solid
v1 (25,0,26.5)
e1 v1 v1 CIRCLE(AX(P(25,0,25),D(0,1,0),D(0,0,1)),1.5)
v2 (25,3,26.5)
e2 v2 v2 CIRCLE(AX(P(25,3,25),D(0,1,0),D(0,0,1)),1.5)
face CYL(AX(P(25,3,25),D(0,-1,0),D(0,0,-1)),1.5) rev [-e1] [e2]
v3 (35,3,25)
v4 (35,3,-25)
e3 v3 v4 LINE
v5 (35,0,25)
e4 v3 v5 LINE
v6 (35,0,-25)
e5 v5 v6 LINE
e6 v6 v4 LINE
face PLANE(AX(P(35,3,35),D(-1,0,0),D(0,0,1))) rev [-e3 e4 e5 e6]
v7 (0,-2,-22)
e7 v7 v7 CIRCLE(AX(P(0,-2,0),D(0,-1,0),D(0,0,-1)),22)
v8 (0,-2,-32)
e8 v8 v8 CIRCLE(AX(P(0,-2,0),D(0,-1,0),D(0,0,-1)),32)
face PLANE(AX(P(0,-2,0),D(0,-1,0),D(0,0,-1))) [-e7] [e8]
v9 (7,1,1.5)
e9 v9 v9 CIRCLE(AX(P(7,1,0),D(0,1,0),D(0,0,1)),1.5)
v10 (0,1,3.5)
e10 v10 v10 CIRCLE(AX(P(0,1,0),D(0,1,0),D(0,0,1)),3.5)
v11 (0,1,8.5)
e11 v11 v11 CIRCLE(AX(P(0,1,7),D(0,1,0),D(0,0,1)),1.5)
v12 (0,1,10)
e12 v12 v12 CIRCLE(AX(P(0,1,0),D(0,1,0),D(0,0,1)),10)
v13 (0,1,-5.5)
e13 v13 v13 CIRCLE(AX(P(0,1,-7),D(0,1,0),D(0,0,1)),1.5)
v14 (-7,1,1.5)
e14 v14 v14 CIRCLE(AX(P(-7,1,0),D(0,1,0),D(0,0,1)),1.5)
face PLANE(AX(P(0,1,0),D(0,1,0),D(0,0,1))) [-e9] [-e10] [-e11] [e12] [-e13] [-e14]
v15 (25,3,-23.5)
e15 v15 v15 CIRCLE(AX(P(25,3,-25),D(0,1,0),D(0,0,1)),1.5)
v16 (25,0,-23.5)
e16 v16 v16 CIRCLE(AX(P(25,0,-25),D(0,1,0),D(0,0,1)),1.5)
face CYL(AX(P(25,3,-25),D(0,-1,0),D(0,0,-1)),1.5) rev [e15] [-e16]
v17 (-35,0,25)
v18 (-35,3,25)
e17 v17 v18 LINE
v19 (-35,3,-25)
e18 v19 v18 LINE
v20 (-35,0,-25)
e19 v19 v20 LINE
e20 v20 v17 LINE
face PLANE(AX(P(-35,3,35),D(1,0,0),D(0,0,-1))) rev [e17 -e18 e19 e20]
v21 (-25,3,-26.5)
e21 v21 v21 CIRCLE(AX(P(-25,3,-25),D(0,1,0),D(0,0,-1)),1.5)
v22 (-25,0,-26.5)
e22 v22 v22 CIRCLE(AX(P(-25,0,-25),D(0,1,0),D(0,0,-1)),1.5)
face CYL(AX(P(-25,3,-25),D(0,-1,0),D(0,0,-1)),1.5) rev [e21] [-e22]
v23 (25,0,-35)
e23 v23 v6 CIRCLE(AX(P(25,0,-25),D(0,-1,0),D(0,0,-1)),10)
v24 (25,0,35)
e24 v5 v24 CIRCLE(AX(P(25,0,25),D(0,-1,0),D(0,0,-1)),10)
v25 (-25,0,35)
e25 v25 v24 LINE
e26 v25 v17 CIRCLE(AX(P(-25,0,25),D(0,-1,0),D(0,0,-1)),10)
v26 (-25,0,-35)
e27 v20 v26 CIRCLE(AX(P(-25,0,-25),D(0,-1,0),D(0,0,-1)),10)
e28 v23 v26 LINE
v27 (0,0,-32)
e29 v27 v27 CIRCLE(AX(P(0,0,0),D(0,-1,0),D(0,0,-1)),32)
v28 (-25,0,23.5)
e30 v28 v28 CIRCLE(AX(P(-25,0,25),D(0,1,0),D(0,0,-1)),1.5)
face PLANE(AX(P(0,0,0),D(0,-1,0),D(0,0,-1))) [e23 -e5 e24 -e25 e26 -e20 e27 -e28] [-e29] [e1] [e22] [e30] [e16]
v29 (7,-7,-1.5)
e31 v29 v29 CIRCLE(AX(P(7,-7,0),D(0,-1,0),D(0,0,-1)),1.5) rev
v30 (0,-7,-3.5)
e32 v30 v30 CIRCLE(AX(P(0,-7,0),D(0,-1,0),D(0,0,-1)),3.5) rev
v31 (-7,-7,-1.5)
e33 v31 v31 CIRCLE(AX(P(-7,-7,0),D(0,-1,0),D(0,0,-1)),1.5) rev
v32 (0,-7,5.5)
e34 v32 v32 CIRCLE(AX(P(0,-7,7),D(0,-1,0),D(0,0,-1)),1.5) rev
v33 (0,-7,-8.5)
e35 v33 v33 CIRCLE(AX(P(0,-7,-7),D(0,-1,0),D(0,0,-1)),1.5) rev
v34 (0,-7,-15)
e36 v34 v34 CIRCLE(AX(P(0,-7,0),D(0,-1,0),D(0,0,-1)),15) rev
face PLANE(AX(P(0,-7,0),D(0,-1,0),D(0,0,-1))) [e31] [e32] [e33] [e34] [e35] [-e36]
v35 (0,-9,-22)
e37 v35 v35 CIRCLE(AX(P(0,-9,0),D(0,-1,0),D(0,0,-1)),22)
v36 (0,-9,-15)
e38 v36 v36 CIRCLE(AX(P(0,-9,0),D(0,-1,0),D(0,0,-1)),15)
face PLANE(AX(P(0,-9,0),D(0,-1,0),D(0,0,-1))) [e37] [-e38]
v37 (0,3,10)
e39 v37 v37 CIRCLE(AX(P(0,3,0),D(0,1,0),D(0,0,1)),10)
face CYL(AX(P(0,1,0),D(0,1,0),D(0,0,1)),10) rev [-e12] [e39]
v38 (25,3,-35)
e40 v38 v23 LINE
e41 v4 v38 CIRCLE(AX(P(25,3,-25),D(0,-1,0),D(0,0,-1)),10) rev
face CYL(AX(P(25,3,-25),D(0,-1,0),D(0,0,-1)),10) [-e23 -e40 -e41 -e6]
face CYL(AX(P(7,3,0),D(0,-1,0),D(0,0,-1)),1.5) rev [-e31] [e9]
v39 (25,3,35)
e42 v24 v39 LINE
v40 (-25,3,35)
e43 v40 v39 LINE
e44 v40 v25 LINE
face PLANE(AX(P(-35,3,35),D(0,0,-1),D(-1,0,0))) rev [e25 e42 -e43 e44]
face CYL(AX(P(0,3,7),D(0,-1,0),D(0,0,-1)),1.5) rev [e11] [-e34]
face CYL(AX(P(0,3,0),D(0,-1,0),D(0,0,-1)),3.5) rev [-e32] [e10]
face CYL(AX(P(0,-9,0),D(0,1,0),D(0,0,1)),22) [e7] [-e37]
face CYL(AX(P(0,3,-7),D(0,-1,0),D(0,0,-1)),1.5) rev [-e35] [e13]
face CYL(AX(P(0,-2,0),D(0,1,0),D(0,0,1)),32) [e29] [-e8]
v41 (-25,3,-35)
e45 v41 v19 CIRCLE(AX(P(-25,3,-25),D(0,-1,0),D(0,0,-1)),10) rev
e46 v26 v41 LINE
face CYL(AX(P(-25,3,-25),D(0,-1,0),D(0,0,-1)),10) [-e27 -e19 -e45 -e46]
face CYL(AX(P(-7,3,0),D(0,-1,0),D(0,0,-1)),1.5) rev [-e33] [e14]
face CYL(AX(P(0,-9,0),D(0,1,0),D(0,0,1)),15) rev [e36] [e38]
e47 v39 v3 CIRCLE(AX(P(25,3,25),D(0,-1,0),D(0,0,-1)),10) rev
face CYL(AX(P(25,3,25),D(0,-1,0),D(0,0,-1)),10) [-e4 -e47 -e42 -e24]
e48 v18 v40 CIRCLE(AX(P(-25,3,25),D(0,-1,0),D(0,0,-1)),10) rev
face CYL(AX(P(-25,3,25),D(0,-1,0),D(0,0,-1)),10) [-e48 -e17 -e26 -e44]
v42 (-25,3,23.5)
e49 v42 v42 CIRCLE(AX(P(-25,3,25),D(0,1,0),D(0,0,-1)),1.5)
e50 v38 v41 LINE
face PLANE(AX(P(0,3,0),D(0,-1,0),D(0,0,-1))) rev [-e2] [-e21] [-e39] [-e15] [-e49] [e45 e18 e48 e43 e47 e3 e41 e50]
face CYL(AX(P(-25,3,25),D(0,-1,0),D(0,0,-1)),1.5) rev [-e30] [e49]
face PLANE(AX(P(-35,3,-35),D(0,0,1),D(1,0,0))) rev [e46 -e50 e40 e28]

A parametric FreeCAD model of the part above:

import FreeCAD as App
import Part
import Sketcher
from FreeCAD import Vector


def edges_at(feature, points):
    """Names of the edges that pass closest to the given points."""
    edges = feature.Shape.Edges
    near = lambda p: min(range(len(edges)), key=lambda i: edges[i].distToShape(Part.Vertex(*p))[0])
    return sorted({f"Edge{near(p) + 1}" for p in points})

doc = App.newDocument("Part")
params = doc.addObject("Spreadsheet::Sheet", "Params")
for row, (alias, value) in enumerate([
    ("sketch1_diameter", "3 mm"),
    ("sketch1_diameter2", "7 mm"),
    ("sketch1_width", "70 mm"),
    ("pad1_length", "3 mm"),
    ("sketch2_diameter", "30 mm"),
    ("sketch2_diameter2", "3 mm"),
    ("sketch2_diameter3", "7 mm"),
    ("pad2_length", "7 mm"),
    ("sketch3_diameter", "44 mm"),
    ("sketch3_diameter2", "30 mm"),
    ("pad3_length", "9 mm"),
    ("sketch4_diameter", "64 mm"),
    ("sketch4_diameter2", "24 mm"),
    ("pad4_length", "2 mm"),
    ("fillet_radius", "10 mm"),
    ("sketch5_diameter", "20 mm"),
    ("pocket1_length", "2 mm"),
], start=1):
    params.set(f"A{row}", alias)
    params.set(f"B{row}", "=" + value)
    params.setAlias(f"B{row}", alias)

body = doc.addObject("PartDesign::Body", "Body")

# Sketch on XZ plane
sketch1 = doc.addObject("Sketcher::SketchObject", "Sketch")
body.addObject(sketch1)
sketch1.AttachmentSupport = (doc.XZ_Plane, [""])
sketch1.MapMode = "FlatFace"
sketch1.addGeometry(Part.LineSegment(Vector(-35, 35, 0), Vector(35, 35, 0)), False)
sketch1.addGeometry(Part.LineSegment(Vector(35, 35, 0), Vector(35, -35, 0)), False)
sketch1.addGeometry(Part.LineSegment(Vector(35, -35, 0), Vector(-35, -35, 0)), False)
sketch1.addGeometry(Part.LineSegment(Vector(-35, -35, 0), Vector(-35, 35, 0)), False)
sketch1.addGeometry(Part.Circle(Vector(-25, 25, 0), Vector(0, 0, 1), 1.5), False)
sketch1.addGeometry(Part.Circle(Vector(25, 25, 0), Vector(0, 0, 1), 1.5), False)
sketch1.addGeometry(Part.Circle(Vector(0, 7, 0), Vector(0, 0, 1), 1.5), False)
sketch1.addGeometry(Part.Circle(Vector(-7, 0, 0), Vector(0, 0, 1), 1.5), False)
sketch1.addGeometry(Part.Circle(Vector(0, 0, 0), Vector(0, 0, 1), 3.5), False)
sketch1.addGeometry(Part.Circle(Vector(-25, -25, 0), Vector(0, 0, 1), 1.5), False)
sketch1.addGeometry(Part.Circle(Vector(7, 0, 0), Vector(0, 0, 1), 1.5), False)
sketch1.addGeometry(Part.Circle(Vector(0, -7, 0), Vector(0, 0, 1), 1.5), False)
sketch1.addGeometry(Part.Circle(Vector(25, -25, 0), Vector(0, 0, 1), 1.5), False)
sketch1.addConstraint(Sketcher.Constraint("Coincident", 0, 2, 1, 1))
sketch1.addConstraint(Sketcher.Constraint("Coincident", 1, 2, 2, 1))
sketch1.addConstraint(Sketcher.Constraint("Coincident", 2, 2, 3, 1))
sketch1.addConstraint(Sketcher.Constraint("Coincident", 3, 2, 0, 1))
sketch1.addConstraint(Sketcher.Constraint("Horizontal", 0))
sketch1.addConstraint(Sketcher.Constraint("Vertical", 1))
sketch1.addConstraint(Sketcher.Constraint("Horizontal", 2))
sketch1.addConstraint(Sketcher.Constraint("Vertical", 3))
sketch1.addConstraint(Sketcher.Constraint("Coincident", 8, 3, -1, 1))
sketch1.addConstraint(Sketcher.Constraint("Equal", 4, 5))
sketch1.addConstraint(Sketcher.Constraint("Equal", 5, 6))
sketch1.addConstraint(Sketcher.Constraint("Equal", 6, 7))
sketch1.addConstraint(Sketcher.Constraint("Equal", 7, 9))
sketch1.addConstraint(Sketcher.Constraint("Equal", 9, 10))
sketch1.addConstraint(Sketcher.Constraint("Equal", 10, 11))
sketch1.addConstraint(Sketcher.Constraint("Equal", 11, 12))
sketch1.addConstraint(Sketcher.Constraint("Symmetric", 5, 3, 9, 3, -1, 1))
sketch1.addConstraint(Sketcher.Constraint("Symmetric", 7, 3, 10, 3, -1, 1))
sketch1.addConstraint(Sketcher.Constraint("Symmetric", 6, 3, 11, 3, -1, 1))
sketch1.addConstraint(Sketcher.Constraint("Symmetric", 4, 3, 12, 3, -1, 1))
sketch1.addConstraint(Sketcher.Constraint("Symmetric", 0, 2, 2, 2, -1, 1))
sketch1.addConstraint(Sketcher.Constraint("Symmetric", 4, 3, 5, 3, -2))
sketch1.addConstraint(Sketcher.Constraint("PointOnObject", 6, 3, -2))
sketch1.addConstraint(Sketcher.Constraint("PointOnObject", 7, 3, -1))
sketch1.addConstraint(Sketcher.Constraint("Equal", 2, 1))
sketch1.addConstraint(Sketcher.Constraint("Diameter", 4, 3.0))
sketch1.addConstraint(Sketcher.Constraint("Diameter", 8, 7.0))
sketch1.addConstraint(Sketcher.Constraint("DistanceX", 0, 1, 0, 2, 70.0))
sketch1.addConstraint(Sketcher.Constraint("DistanceX", 4, 3, -1, 1, 25.0))
sketch1.addConstraint(Sketcher.Constraint("DistanceY", -1, 1, 4, 3, 25.0))
sketch1.addConstraint(Sketcher.Constraint("DistanceY", -1, 1, 6, 3, 7.0))
sketch1.addConstraint(Sketcher.Constraint("DistanceX", 7, 3, -1, 1, 7.0))
sketch1.setExpression("Constraints[25]", "Params.sketch1_diameter")
sketch1.setExpression("Constraints[26]", "Params.sketch1_diameter2")
sketch1.setExpression("Constraints[27]", "Params.sketch1_width")
pad1 = doc.addObject("PartDesign::Pad", "Pad")
body.addObject(pad1)
pad1.Profile = sketch1
pad1.setExpression("Length", "Params.pad1_length")
pad1.Reversed = True

# Sketch on XZ plane
sketch2 = doc.addObject("Sketcher::SketchObject", "Sketch001")
body.addObject(sketch2)
sketch2.AttachmentSupport = (doc.XZ_Plane, [""])
sketch2.MapMode = "FlatFace"
sketch2.AttachmentOffset = App.Placement(Vector(0, 0, 7), App.Rotation())
sketch2.addGeometry(Part.Circle(Vector(0, 0, 0), Vector(0, 0, 1), 15), False)
sketch2.addGeometry(Part.Circle(Vector(0, 7, 0), Vector(0, 0, 1), 1.5), False)
sketch2.addGeometry(Part.Circle(Vector(-7, 0, 0), Vector(0, 0, 1), 1.5), False)
sketch2.addGeometry(Part.Circle(Vector(0, 0, 0), Vector(0, 0, 1), 3.5), False)
sketch2.addGeometry(Part.Circle(Vector(7, 0, 0), Vector(0, 0, 1), 1.5), False)
sketch2.addGeometry(Part.Circle(Vector(0, -7, 0), Vector(0, 0, 1), 1.5), False)
sketch2.addConstraint(Sketcher.Constraint("Coincident", 0, 3, -1, 1))
sketch2.addConstraint(Sketcher.Constraint("Coincident", 3, 3, -1, 1))
sketch2.addConstraint(Sketcher.Constraint("Equal", 1, 2))
sketch2.addConstraint(Sketcher.Constraint("Equal", 2, 4))
sketch2.addConstraint(Sketcher.Constraint("Equal", 4, 5))
sketch2.addConstraint(Sketcher.Constraint("Symmetric", 2, 3, 4, 3, -1, 1))
sketch2.addConstraint(Sketcher.Constraint("Symmetric", 1, 3, 5, 3, -1, 1))
sketch2.addConstraint(Sketcher.Constraint("PointOnObject", 1, 3, -2))
sketch2.addConstraint(Sketcher.Constraint("PointOnObject", 2, 3, -1))
sketch2.addConstraint(Sketcher.Constraint("Diameter", 0, 30.0))
sketch2.addConstraint(Sketcher.Constraint("Diameter", 1, 3.0))
sketch2.addConstraint(Sketcher.Constraint("Diameter", 3, 7.0))
sketch2.addConstraint(Sketcher.Constraint("DistanceY", -1, 1, 1, 3, 7.0))
sketch2.addConstraint(Sketcher.Constraint("DistanceX", 2, 3, -1, 1, 7.0))
sketch2.setExpression("Constraints[9]", "Params.sketch2_diameter")
sketch2.setExpression("Constraints[10]", "Params.sketch2_diameter2")
sketch2.setExpression("Constraints[11]", "Params.sketch2_diameter3")
pad2 = doc.addObject("PartDesign::Pad", "Pad001")
body.addObject(pad2)
pad2.Profile = sketch2
pad2.setExpression("Length", "Params.pad2_length")
pad2.Reversed = True

# Sketch on XZ plane
sketch3 = doc.addObject("Sketcher::SketchObject", "Sketch002")
body.addObject(sketch3)
sketch3.AttachmentSupport = (doc.XZ_Plane, [""])
sketch3.MapMode = "FlatFace"
sketch3.AttachmentOffset = App.Placement(Vector(0, 0, 9), App.Rotation())
sketch3.addGeometry(Part.Circle(Vector(0, 0, 0), Vector(0, 0, 1), 22), False)
sketch3.addGeometry(Part.Circle(Vector(0, 0, 0), Vector(0, 0, 1), 15), False)
sketch3.addConstraint(Sketcher.Constraint("Coincident", 0, 3, -1, 1))
sketch3.addConstraint(Sketcher.Constraint("Coincident", 1, 3, -1, 1))
sketch3.addConstraint(Sketcher.Constraint("Diameter", 0, 44.0))
sketch3.addConstraint(Sketcher.Constraint("Diameter", 1, 30.0))
sketch3.setExpression("Constraints[2]", "Params.sketch3_diameter")
sketch3.setExpression("Constraints[3]", "Params.sketch3_diameter2")
pad3 = doc.addObject("PartDesign::Pad", "Pad002")
body.addObject(pad3)
pad3.Profile = sketch3
pad3.setExpression("Length", "Params.pad3_length")
pad3.Reversed = True

# Sketch on XZ plane
sketch4 = doc.addObject("Sketcher::SketchObject", "Sketch003")
body.addObject(sketch4)
sketch4.AttachmentSupport = (doc.XZ_Plane, [""])
sketch4.MapMode = "FlatFace"
sketch4.addGeometry(Part.Circle(Vector(0, 0, 0), Vector(0, 0, 1), 32), False)
sketch4.addGeometry(Part.Circle(Vector(0, 0, 0), Vector(0, 0, 1), 12), False)
sketch4.addConstraint(Sketcher.Constraint("Coincident", 0, 3, -1, 1))
sketch4.addConstraint(Sketcher.Constraint("Coincident", 1, 3, -1, 1))
sketch4.addConstraint(Sketcher.Constraint("Diameter", 0, 64.0))
sketch4.addConstraint(Sketcher.Constraint("Diameter", 1, 24.0))
sketch4.setExpression("Constraints[2]", "Params.sketch4_diameter")
sketch4.setExpression("Constraints[3]", "Params.sketch4_diameter2")
pad4 = doc.addObject("PartDesign::Pad", "Pad003")
body.addObject(pad4)
pad4.Profile = sketch4
pad4.setExpression("Length", "Params.pad4_length")
doc.recompute()

fillet = doc.addObject("PartDesign::Fillet", "Fillet")
body.addObject(fillet)
fillet.Base = (pad4, edges_at(pad4, [
    (35, 1.5, 35),
    (-35, 1.5, 35),
    (-35, 1.5, -35),
    (35, 1.5, -35),
]))
fillet.setExpression("Radius", "Params.fillet_radius")

# Sketch on XZ plane
sketch5 = doc.addObject("Sketcher::SketchObject", "Sketch004")
body.addObject(sketch5)
sketch5.AttachmentSupport = (doc.XZ_Plane, [""])
sketch5.MapMode = "FlatFace"
sketch5.AttachmentOffset = App.Placement(Vector(0, 0, -3), App.Rotation())
sketch5.addGeometry(Part.Circle(Vector(0, 0, 0), Vector(0, 0, 1), 10), False)
sketch5.addConstraint(Sketcher.Constraint("Coincident", 0, 3, -1, 1))
sketch5.addConstraint(Sketcher.Constraint("Diameter", 0, 20.0))
sketch5.setExpression("Constraints[1]", "Params.sketch5_diameter")
pocket1 = doc.addObject("PartDesign::Pocket", "Pocket")
body.addObject(pocket1)
pocket1.Profile = sketch5
pocket1.setExpression("Length", "Params.pocket1_length")
pocket1.Reversed = True

doc.recompute()
